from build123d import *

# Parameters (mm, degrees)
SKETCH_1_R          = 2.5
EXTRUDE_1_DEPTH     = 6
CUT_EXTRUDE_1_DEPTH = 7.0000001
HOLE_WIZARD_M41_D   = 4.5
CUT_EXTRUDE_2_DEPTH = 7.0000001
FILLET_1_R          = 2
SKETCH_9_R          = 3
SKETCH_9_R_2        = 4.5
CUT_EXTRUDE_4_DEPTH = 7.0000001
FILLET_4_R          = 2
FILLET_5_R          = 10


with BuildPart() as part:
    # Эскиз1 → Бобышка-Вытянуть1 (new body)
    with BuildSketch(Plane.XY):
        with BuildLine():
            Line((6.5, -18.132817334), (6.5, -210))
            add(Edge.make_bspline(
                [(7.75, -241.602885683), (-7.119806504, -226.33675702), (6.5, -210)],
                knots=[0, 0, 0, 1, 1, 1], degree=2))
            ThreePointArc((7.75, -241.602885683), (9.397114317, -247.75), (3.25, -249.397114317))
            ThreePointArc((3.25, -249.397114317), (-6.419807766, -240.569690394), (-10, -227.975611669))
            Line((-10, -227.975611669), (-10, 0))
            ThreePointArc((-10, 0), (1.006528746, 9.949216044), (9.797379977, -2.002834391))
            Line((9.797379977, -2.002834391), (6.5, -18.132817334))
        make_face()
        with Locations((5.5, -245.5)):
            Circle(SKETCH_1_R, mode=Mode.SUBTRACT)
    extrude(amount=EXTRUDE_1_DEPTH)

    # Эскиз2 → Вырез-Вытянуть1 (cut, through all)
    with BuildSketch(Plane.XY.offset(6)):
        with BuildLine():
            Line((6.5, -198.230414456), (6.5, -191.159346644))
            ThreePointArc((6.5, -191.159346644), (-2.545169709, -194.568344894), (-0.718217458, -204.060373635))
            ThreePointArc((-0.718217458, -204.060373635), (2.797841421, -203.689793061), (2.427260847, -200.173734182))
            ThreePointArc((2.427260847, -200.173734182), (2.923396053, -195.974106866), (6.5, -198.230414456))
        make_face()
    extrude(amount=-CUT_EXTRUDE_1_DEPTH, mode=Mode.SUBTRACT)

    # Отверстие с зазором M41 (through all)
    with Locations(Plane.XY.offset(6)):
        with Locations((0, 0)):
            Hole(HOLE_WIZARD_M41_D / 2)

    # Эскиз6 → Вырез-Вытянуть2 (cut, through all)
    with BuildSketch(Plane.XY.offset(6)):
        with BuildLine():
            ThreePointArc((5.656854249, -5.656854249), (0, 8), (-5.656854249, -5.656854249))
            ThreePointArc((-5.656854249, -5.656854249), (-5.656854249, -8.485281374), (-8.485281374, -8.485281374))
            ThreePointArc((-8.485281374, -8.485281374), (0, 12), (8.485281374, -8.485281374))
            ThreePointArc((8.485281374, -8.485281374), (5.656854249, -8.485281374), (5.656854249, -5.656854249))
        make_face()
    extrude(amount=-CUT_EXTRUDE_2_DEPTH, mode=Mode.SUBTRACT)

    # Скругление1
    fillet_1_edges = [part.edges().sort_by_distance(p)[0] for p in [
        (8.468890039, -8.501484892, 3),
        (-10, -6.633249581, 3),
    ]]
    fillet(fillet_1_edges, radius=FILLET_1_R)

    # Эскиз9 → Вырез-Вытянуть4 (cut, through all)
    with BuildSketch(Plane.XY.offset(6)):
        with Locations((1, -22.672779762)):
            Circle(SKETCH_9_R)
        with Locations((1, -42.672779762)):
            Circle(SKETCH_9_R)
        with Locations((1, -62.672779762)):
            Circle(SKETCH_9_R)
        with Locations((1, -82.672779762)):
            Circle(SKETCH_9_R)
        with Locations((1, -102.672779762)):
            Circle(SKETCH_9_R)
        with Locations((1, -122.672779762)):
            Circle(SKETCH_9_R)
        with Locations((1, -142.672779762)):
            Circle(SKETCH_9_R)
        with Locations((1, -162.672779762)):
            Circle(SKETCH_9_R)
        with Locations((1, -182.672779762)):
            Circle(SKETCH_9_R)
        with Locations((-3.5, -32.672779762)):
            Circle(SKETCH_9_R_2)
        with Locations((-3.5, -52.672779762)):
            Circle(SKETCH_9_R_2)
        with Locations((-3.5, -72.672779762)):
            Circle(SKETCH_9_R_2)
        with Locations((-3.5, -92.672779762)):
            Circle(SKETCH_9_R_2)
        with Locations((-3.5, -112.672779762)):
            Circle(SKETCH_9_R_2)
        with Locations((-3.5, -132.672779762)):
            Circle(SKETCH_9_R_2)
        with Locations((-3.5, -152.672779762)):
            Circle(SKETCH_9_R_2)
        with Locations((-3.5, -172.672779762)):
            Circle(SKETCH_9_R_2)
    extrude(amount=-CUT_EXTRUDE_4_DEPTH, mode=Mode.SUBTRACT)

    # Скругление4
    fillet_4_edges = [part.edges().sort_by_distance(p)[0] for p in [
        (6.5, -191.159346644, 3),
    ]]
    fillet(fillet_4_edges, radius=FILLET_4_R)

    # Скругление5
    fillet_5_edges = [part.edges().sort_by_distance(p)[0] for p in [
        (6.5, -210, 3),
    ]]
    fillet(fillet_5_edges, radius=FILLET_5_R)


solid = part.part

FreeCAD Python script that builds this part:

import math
import FreeCAD as App
import Part
import Sketcher
Q = App.Units.Quantity


def edges_at(feature, points):
    """Names of the edges that pass closest to the given points."""
    edges = feature.Shape.Edges
    near = lambda p: min(range(len(edges)), key=lambda i: edges[i].distToShape(Part.Vertex(*p))[0])
    return sorted({f"Edge{near(p) + 1}" for p in points})

doc = App.newDocument("Part")
body = doc.addObject("PartDesign::Body", "Body")

# Sketch on XY plane
sketch1 = body.newObject("Sketcher::SketchObject", "Sketch")
sketch1.AttachmentSupport = (doc.getObject("XY_Plane"), [""])
sketch1.MapMode = "FlatFace"
sketch1.addGeometry(Part.LineSegment(App.Vector(6.5, -210, 0), App.Vector(6.5, -18.132817, 0)), False)
sketch1.addGeometry(Part.LineSegment(App.Vector(6.5, -18.132817, 0), App.Vector(9.79738, -2.002834, 0)), False)
sketch1.addGeometry(Part.ArcOfCircle(Part.Circle(App.Vector(0, 0, 0), App.Vector(0, 0, 1), 10), math.radians(-11.553534), math.radians(180)), False)
sketch1.addGeometry(Part.LineSegment(App.Vector(-10, 0, 0), App.Vector(-10, -227.975612, 0)), False)
sketch1.addGeometry(Part.ArcOfCircle(Part.Circle(App.Vector(13.941256, -227.975612, 0), App.Vector(0, 0, 1), 23.941256), math.radians(180), math.radians(243.47668)), False)
sketch1.addGeometry(Part.ArcOfCircle(Part.Circle(App.Vector(5.5, -245.5, 0), App.Vector(0, 0, 1), 4.5), math.radians(-120), math.radians(60)), False)
sketch1.addGeometry(Part.BSplineCurve([App.Vector(7.75, -241.602886, 0), App.Vector(-7.119807, -226.336757, 0), App.Vector(6.5, -210, 0)], [3, 3], [0, 1], False, 2, [1, 1, 1], False), False)
sketch1.addGeometry(Part.Circle(App.Vector(5.5, -245.5, 0), App.Vector(0, 0, 1), 2.5), False)
sketch1.addConstraint(Sketcher.Constraint("Block", 6))
sketch1.addConstraint(Sketcher.Constraint("Coincident", 0, 2, 1, 1))
sketch1.addConstraint(Sketcher.Constraint("Tangent", 1, 2, 2, 1))
sketch1.addConstraint(Sketcher.Constraint("Tangent", 2, 2, 3, 1))
sketch1.addConstraint(Sketcher.Constraint("Tangent", 3, 2, 4, 1))
sketch1.addConstraint(Sketcher.Constraint("Coincident", 4, 2, 5, 1))
sketch1.addConstraint(Sketcher.Constraint("Coincident", 5, 2, 6, 1))
sketch1.addConstraint(Sketcher.Constraint("Coincident", 6, 2, 0, 1))
sketch1.addConstraint(Sketcher.Constraint("Vertical", 0))
sketch1.addConstraint(Sketcher.Constraint("Vertical", 3))
sketch1.addConstraint(Sketcher.Constraint("Coincident", 2, 3, -1, 1))
sketch1.addConstraint(Sketcher.Constraint("Coincident", 7, 3, 5, 3))
sketch1.addConstraint(Sketcher.Constraint("Diameter", 7, Q("5 mm")))
sketch1.addConstraint(Sketcher.Constraint("Radius", 2, Q("10 mm")))
sketch1.addConstraint(Sketcher.Constraint("Radius", 5, Q("4.5 mm")))
sketch1.addConstraint(Sketcher.Constraint("DistanceX", 5, 3, 0, 2, Q("1 mm")))
sketch1.addConstraint(Sketcher.Constraint("DistanceX", 4, 2, 5, 2, Q("4.5 mm")))
sketch1.addConstraint(Sketcher.Constraint("Radius", 4, Q("23.941256 mm")))
sketch1.addConstraint(Sketcher.Constraint("DistanceY", 0, 1, 0, 2, Q("191.867183 mm")))
pad1 = body.newObject("PartDesign::Pad", "Pad")
pad1.Profile = sketch1
pad1.Length = 6

# Sketch on XY plane
sketch2 = body.newObject("Sketcher::SketchObject", "Sketch001")
sketch2.AttachmentSupport = (doc.getObject("XY_Plane"), [""])
sketch2.MapMode = "FlatFace"
sketch2.AttachmentOffset = App.Placement(App.Vector(0, 0, 6), App.Rotation())
sketch2.addGeometry(Part.LineSegment(App.Vector(6.5, -198.2, 0), App.Vector(6.5, -191.2, 0)), False)
sketch2.addGeometry(Part.ArcOfCircle(Part.Circle(App.Vector(4, -198.2, 0), App.Vector(0, 0, 1), 7.5), math.radians(71), math.radians(231)), False)
sketch2.addGeometry(Part.ArcOfCircle(Part.Circle(App.Vector(0.9, -202.1, 0), App.Vector(0, 0, 1), 2.5), math.radians(-129), math.radians(51)), False)
sketch2.addGeometry(Part.ArcOfCircle(Part.Circle(App.Vector(4, -198.2, 0), App.Vector(0, 0, 1), 2.5), math.radians(0), math.radians(231)), False)
sketch2.addConstraint(Sketcher.Constraint("Coincident", 0, 2, 1, 1))
sketch2.addConstraint(Sketcher.Constraint("Tangent", 1, 2, 2, 1))
sketch2.addConstraint(Sketcher.Constraint("Tangent", 2, 2, 3, 2))
sketch2.addConstraint(Sketcher.Constraint("Tangent", 3, 1, 0, 1))
sketch2.addConstraint(Sketcher.Constraint("Vertical", 0))
sketch2.addConstraint(Sketcher.Constraint("Coincident", 3, 3, 1, 3))
sketch2.addConstraint(Sketcher.Constraint("Equal", 2, 3))
sketch2.addConstraint(Sketcher.Constraint("Radius", 1, Q("7.5 mm")))
sketch2.addConstraint(Sketcher.Constraint("DistanceX", -1, 1, 1, 3, Q("4 mm")))
sketch2.addConstraint(Sketcher.Constraint("DistanceX", -1, 1, 2, 3, Q("0.854522 mm")))
sketch2.addConstraint(Sketcher.Constraint("DistanceY", 1, 3, -1, 1, Q("198.230414 mm")))
pocket1 = body.newObject("PartDesign::Pocket", "Pocket")
pocket1.Profile = sketch2
pocket1.Type = "ThroughAll"

# Sketch on XY plane
sketch3 = body.newObject("Sketcher::SketchObject", "Sketch002")
sketch3.AttachmentSupport = (doc.getObject("XY_Plane"), [""])
sketch3.MapMode = "FlatFace"
sketch3.AttachmentOffset = App.Placement(App.Vector(0, 0, 6), App.Rotation())
sketch3.addGeometry(Part.Circle(App.Vector(0, 0, 0), App.Vector(0, 0, 1), 2.2), False)
sketch3.addConstraint(Sketcher.Constraint("Coincident", 0, 3, -1, 1))
sketch3.addConstraint(Sketcher.Constraint("Diameter", 0, Q("4.5 mm")))
doc.recompute()
hole = body.newObject("PartDesign::Hole", "Hole")
hole.Profile = sketch3
hole.ThreadType = "None"
hole.Diameter = 4.5
hole.DepthType = "ThroughAll"

# Sketch on XY plane
sketch4 = body.newObject("Sketcher::SketchObject", "Sketch003")
sketch4.AttachmentSupport = (doc.getObject("XY_Plane"), [""])
sketch4.MapMode = "FlatFace"
sketch4.AttachmentOffset = App.Placement(App.Vector(0, 0, 6), App.Rotation())
sketch4.addGeometry(Part.ArcOfCircle(Part.Circle(App.Vector(0, 0, 0), App.Vector(0, 0, 1), 8), math.radians(-45), math.radians(225)), False)
sketch4.addGeometry(Part.ArcOfCircle(Part.Circle(App.Vector(7.1, -7.1, 0), App.Vector(0, 0, 1), 2), math.radians(135), math.radians(315)), False)
sketch4.addGeometry(Part.ArcOfCircle(Part.Circle(App.Vector(0, 0, 0), App.Vector(0, 0, 1), 12), math.radians(-45), math.radians(225)), False)
sketch4.addGeometry(Part.ArcOfCircle(Part.Circle(App.Vector(-7.1, -7.1, 0), App.Vector(0, 0, 1), 2), math.radians(-135), math.radians(45)), False)
sketch4.addConstraint(Sketcher.Constraint("Tangent", 0, 1, 1, 1))
sketch4.addConstraint(Sketcher.Constraint("Tangent", 1, 2, 2, 1))
sketch4.addConstraint(Sketcher.Constraint("Tangent", 2, 2, 3, 1))
sketch4.addConstraint(Sketcher.Constraint("Tangent", 3, 2, 0, 2))
sketch4.addConstraint(Sketcher.Constraint("Coincident", 0, 3, -1, 1))
sketch4.addConstraint(Sketcher.Constraint("Coincident", 2, 3, -1, 1))
sketch4.addConstraint(Sketcher.Constraint("Horizontal", 1, 3, 3, 3))
sketch4.addConstraint(Sketcher.Constraint("Radius", 0, Q("8 mm")))
sketch4.addConstraint(Sketcher.Constraint("Radius", 1, Q("2 mm")))
sketch4.addConstraint(Sketcher.Constraint("DistanceX", -1, 1, 1, 2, Q("8.485281 mm")))
pocket2 = body.newObject("PartDesign::Pocket", "Pocket001")
pocket2.Profile = sketch4
pocket2.Type = "ThroughAll"
doc.recompute()

fillet = body.newObject("PartDesign::Fillet", "Fillet")
fillet.Base = (pocket2, edges_at(pocket2, [(8.469, -8.501, 3), (-10, -6.633, 3)]))
fillet.Radius = 2

# Sketch on XY plane
sketch5 = body.newObject("Sketcher::SketchObject", "Sketch004")
sketch5.AttachmentSupport = (doc.getObject("XY_Plane"), [""])
sketch5.MapMode = "FlatFace"
sketch5.AttachmentOffset = App.Placement(App.Vector(0, 0, 6), App.Rotation())
sketch5.addGeometry(Part.Circle(App.Vector(1, -22.7, 0), App.Vector(0, 0, 1), 3), False)
sketch5.addGeometry(Part.Circle(App.Vector(1, -42.7, 0), App.Vector(0, 0, 1), 3), False)
sketch5.addGeometry(Part.Circle(App.Vector(1, -62.7, 0), App.Vector(0, 0, 1), 3), False)
sketch5.addGeometry(Part.Circle(App.Vector(1, -82.7, 0), App.Vector(0, 0, 1), 3), False)
sketch5.addGeometry(Part.Circle(App.Vector(1, -102.7, 0), App.Vector(0, 0, 1), 3), False)
sketch5.addGeometry(Part.Circle(App.Vector(1, -122.7, 0), App.Vector(0, 0, 1), 3), False)
sketch5.addGeometry(Part.Circle(App.Vector(1, -142.7, 0), App.Vector(0, 0, 1), 3), False)
sketch5.addGeometry(Part.Circle(App.Vector(1, -162.7, 0), App.Vector(0, 0, 1), 3), False)
sketch5.addGeometry(Part.Circle(App.Vector(1, -182.7, 0), App.Vector(0, 0, 1), 3), False)
sketch5.addGeometry(Part.Circle(App.Vector(-3.5, -32.7, 0), App.Vector(0, 0, 1), 4.5), False)
sketch5.addGeometry(Part.Circle(App.Vector(-3.5, -52.7, 0), App.Vector(0, 0, 1), 4.5), False)
sketch5.addGeometry(Part.Circle(App.Vector(-3.5, -72.7, 0), App.Vector(0, 0, 1), 4.5), False)
sketch5.addGeometry(Part.Circle(App.Vector(-3.5, -92.7, 0), App.Vector(0, 0, 1), 4.5), False)
sketch5.addGeometry(Part.Circle(App.Vector(-3.5, -112.7, 0), App.Vector(0, 0, 1), 4.5), False)
sketch5.addGeometry(Part.Circle(App.Vector(-3.5, -132.7, 0), App.Vector(0, 0, 1), 4.5), False)
sketch5.addGeometry(Part.Circle(App.Vector(-3.5, -152.7, 0), App.Vector(0, 0, 1), 4.5), False)
sketch5.addGeometry(Part.Circle(App.Vector(-3.5, -172.7, 0), App.Vector(0, 0, 1), 4.5), False)
sketch5.addConstraint(Sketcher.Constraint("Equal", 0, 1))
sketch5.addConstraint(Sketcher.Constraint("Equal", 1, 2))
sketch5.addConstraint(Sketcher.Constraint("Equal", 2, 3))
sketch5.addConstraint(Sketcher.Constraint("Equal", 3, 4))
sketch5.addConstraint(Sketcher.Constraint("Equal", 4, 5))
sketch5.addConstraint(Sketcher.Constraint("Equal", 5, 6))
sketch5.addConstraint(Sketcher.Constraint("Equal", 6, 7))
sketch5.addConstraint(Sketcher.Constraint("Equal", 7, 8))
sketch5.addConstraint(Sketcher.Constraint("Equal", 9, 10))
sketch5.addConstraint(Sketcher.Constraint("Equal", 10, 11))
sketch5.addConstraint(Sketcher.Constraint("Equal", 11, 12))
sketch5.addConstraint(Sketcher.Constraint("Equal", 12, 13))
sketch5.addConstraint(Sketcher.Constraint("Equal", 13, 14))
sketch5.addConstraint(Sketcher.Constraint("Equal", 14, 15))
sketch5.addConstraint(Sketcher.Constraint("Equal", 15, 16))
sketch5.addConstraint(Sketcher.Constraint("Vertical", 0, 3, 1, 3))
sketch5.addConstraint(Sketcher.Constraint("Vertical", 1, 3, 2, 3))
sketch5.addConstraint(Sketcher.Constraint("Vertical", 2, 3, 3, 3))
sketch5.addConstraint(Sketcher.Constraint("Vertical", 3, 3, 4, 3))
sketch5.addConstraint(Sketcher.Constraint("Vertical", 4, 3, 5, 3))
sketch5.addConstraint(Sketcher.Constraint("Vertical", 5, 3, 6, 3))
sketch5.addConstraint(Sketcher.Constraint("Vertical", 6, 3, 7, 3))
sketch5.addConstraint(Sketcher.Constraint("Vertical", 7, 3, 8, 3))
sketch5.addConstraint(Sketcher.Constraint("Vertical", 9, 3, 10, 3))
sketch5.addConstraint(Sketcher.Constraint("Vertical", 10, 3, 11, 3))
sketch5.addConstraint(Sketcher.Constraint("Vertical", 11, 3, 12, 3))
sketch5.addConstraint(Sketcher.Constraint("Vertical", 12, 3, 13, 3))
sketch5.addConstraint(Sketcher.Constraint("Vertical", 13, 3, 14, 3))
sketch5.addConstraint(Sketcher.Constraint("Vertical", 14, 3, 15, 3))
sketch5.addConstraint(Sketcher.Constraint("Vertical", 15, 3, 16, 3))
sketch5.addConstraint(Sketcher.Constraint("Diameter", 0, Q("6 mm")))
sketch5.addConstraint(Sketcher.Constraint("Diameter", 9, Q("9 mm")))
sketch5.addConstraint(Sketcher.Constraint("DistanceX", -1, 1, 0, 3, Q("1 mm")))
sketch5.addConstraint(Sketcher.Constraint("DistanceY", 1, 3, 0, 3, Q("20 mm")))
sketch5.addConstraint(Sketcher.Constraint("DistanceY", 2, 3, 1, 3, Q("20 mm")))
sketch5.addConstraint(Sketcher.Constraint("DistanceY", 3, 3, 2, 3, Q("20 mm")))
sketch5.addConstraint(Sketcher.Constraint("DistanceY", 4, 3, 3, 3, Q("20 mm")))
sketch5.addConstraint(Sketcher.Constraint("DistanceY", 5, 3, 4, 3, Q("20 mm")))
sketch5.addConstraint(Sketcher.Constraint("DistanceY", 6, 3, 5, 3, Q("20 mm")))
sketch5.addConstraint(Sketcher.Constraint("DistanceY", 7, 3, 6, 3, Q("20 mm")))
sketch5.addConstraint(Sketcher.Constraint("DistanceY", 8, 3, 7, 3, Q("20 mm")))
sketch5.addConstraint(Sketcher.Constraint("DistanceY", 9, 3, 0, 3, Q("10 mm")))
sketch5.addConstraint(Sketcher.Constraint("DistanceY", 10, 3, 1, 3, Q("10 mm")))
sketch5.addConstraint(Sketcher.Constraint("DistanceY", 3, 3, 11, 3, Q("10 mm")))
sketch5.addConstraint(Sketcher.Constraint("DistanceY", 12, 3, 3, 3, Q("10 mm")))
sketch5.addConstraint(Sketcher.Constraint("DistanceY", 13, 3, 4, 3, Q("10 mm")))
sketch5.addConstraint(Sketcher.Constraint("DistanceY", 14, 3, 5, 3, Q("10 mm")))
sketch5.addConstraint(Sketcher.Constraint("DistanceY", 15, 3, 6, 3, Q("10 mm")))
sketch5.addConstraint(Sketcher.Constraint("DistanceY", 16, 3, 7, 3, Q("10 mm")))
sketch5.addConstraint(Sketcher.Constraint("DistanceX", 9, 3, -1, 1, Q("3.5 mm")))
sketch5.addConstraint(Sketcher.Constraint("DistanceY", 0, 3, -1, 1, Q("22.67278 mm")))
pocket3 = body.newObject("PartDesign::Pocket", "Pocket002")
pocket3.Profile = sketch5
pocket3.Type = "ThroughAll"
doc.recompute()

fillet2 = body.newObject("PartDesign::Fillet", "Fillet001")
fillet2.Base = (pocket3, edges_at(pocket3, [(6.5, -191.159, 3)]))
fillet2.Radius = 2
doc.recompute()

fillet3 = body.newObject("PartDesign::Fillet", "Fillet002")
fillet3.Base = (fillet2, edges_at(fillet2, [(6.5, -210, 3)]))
fillet3.Radius = 10

doc.recompute()
